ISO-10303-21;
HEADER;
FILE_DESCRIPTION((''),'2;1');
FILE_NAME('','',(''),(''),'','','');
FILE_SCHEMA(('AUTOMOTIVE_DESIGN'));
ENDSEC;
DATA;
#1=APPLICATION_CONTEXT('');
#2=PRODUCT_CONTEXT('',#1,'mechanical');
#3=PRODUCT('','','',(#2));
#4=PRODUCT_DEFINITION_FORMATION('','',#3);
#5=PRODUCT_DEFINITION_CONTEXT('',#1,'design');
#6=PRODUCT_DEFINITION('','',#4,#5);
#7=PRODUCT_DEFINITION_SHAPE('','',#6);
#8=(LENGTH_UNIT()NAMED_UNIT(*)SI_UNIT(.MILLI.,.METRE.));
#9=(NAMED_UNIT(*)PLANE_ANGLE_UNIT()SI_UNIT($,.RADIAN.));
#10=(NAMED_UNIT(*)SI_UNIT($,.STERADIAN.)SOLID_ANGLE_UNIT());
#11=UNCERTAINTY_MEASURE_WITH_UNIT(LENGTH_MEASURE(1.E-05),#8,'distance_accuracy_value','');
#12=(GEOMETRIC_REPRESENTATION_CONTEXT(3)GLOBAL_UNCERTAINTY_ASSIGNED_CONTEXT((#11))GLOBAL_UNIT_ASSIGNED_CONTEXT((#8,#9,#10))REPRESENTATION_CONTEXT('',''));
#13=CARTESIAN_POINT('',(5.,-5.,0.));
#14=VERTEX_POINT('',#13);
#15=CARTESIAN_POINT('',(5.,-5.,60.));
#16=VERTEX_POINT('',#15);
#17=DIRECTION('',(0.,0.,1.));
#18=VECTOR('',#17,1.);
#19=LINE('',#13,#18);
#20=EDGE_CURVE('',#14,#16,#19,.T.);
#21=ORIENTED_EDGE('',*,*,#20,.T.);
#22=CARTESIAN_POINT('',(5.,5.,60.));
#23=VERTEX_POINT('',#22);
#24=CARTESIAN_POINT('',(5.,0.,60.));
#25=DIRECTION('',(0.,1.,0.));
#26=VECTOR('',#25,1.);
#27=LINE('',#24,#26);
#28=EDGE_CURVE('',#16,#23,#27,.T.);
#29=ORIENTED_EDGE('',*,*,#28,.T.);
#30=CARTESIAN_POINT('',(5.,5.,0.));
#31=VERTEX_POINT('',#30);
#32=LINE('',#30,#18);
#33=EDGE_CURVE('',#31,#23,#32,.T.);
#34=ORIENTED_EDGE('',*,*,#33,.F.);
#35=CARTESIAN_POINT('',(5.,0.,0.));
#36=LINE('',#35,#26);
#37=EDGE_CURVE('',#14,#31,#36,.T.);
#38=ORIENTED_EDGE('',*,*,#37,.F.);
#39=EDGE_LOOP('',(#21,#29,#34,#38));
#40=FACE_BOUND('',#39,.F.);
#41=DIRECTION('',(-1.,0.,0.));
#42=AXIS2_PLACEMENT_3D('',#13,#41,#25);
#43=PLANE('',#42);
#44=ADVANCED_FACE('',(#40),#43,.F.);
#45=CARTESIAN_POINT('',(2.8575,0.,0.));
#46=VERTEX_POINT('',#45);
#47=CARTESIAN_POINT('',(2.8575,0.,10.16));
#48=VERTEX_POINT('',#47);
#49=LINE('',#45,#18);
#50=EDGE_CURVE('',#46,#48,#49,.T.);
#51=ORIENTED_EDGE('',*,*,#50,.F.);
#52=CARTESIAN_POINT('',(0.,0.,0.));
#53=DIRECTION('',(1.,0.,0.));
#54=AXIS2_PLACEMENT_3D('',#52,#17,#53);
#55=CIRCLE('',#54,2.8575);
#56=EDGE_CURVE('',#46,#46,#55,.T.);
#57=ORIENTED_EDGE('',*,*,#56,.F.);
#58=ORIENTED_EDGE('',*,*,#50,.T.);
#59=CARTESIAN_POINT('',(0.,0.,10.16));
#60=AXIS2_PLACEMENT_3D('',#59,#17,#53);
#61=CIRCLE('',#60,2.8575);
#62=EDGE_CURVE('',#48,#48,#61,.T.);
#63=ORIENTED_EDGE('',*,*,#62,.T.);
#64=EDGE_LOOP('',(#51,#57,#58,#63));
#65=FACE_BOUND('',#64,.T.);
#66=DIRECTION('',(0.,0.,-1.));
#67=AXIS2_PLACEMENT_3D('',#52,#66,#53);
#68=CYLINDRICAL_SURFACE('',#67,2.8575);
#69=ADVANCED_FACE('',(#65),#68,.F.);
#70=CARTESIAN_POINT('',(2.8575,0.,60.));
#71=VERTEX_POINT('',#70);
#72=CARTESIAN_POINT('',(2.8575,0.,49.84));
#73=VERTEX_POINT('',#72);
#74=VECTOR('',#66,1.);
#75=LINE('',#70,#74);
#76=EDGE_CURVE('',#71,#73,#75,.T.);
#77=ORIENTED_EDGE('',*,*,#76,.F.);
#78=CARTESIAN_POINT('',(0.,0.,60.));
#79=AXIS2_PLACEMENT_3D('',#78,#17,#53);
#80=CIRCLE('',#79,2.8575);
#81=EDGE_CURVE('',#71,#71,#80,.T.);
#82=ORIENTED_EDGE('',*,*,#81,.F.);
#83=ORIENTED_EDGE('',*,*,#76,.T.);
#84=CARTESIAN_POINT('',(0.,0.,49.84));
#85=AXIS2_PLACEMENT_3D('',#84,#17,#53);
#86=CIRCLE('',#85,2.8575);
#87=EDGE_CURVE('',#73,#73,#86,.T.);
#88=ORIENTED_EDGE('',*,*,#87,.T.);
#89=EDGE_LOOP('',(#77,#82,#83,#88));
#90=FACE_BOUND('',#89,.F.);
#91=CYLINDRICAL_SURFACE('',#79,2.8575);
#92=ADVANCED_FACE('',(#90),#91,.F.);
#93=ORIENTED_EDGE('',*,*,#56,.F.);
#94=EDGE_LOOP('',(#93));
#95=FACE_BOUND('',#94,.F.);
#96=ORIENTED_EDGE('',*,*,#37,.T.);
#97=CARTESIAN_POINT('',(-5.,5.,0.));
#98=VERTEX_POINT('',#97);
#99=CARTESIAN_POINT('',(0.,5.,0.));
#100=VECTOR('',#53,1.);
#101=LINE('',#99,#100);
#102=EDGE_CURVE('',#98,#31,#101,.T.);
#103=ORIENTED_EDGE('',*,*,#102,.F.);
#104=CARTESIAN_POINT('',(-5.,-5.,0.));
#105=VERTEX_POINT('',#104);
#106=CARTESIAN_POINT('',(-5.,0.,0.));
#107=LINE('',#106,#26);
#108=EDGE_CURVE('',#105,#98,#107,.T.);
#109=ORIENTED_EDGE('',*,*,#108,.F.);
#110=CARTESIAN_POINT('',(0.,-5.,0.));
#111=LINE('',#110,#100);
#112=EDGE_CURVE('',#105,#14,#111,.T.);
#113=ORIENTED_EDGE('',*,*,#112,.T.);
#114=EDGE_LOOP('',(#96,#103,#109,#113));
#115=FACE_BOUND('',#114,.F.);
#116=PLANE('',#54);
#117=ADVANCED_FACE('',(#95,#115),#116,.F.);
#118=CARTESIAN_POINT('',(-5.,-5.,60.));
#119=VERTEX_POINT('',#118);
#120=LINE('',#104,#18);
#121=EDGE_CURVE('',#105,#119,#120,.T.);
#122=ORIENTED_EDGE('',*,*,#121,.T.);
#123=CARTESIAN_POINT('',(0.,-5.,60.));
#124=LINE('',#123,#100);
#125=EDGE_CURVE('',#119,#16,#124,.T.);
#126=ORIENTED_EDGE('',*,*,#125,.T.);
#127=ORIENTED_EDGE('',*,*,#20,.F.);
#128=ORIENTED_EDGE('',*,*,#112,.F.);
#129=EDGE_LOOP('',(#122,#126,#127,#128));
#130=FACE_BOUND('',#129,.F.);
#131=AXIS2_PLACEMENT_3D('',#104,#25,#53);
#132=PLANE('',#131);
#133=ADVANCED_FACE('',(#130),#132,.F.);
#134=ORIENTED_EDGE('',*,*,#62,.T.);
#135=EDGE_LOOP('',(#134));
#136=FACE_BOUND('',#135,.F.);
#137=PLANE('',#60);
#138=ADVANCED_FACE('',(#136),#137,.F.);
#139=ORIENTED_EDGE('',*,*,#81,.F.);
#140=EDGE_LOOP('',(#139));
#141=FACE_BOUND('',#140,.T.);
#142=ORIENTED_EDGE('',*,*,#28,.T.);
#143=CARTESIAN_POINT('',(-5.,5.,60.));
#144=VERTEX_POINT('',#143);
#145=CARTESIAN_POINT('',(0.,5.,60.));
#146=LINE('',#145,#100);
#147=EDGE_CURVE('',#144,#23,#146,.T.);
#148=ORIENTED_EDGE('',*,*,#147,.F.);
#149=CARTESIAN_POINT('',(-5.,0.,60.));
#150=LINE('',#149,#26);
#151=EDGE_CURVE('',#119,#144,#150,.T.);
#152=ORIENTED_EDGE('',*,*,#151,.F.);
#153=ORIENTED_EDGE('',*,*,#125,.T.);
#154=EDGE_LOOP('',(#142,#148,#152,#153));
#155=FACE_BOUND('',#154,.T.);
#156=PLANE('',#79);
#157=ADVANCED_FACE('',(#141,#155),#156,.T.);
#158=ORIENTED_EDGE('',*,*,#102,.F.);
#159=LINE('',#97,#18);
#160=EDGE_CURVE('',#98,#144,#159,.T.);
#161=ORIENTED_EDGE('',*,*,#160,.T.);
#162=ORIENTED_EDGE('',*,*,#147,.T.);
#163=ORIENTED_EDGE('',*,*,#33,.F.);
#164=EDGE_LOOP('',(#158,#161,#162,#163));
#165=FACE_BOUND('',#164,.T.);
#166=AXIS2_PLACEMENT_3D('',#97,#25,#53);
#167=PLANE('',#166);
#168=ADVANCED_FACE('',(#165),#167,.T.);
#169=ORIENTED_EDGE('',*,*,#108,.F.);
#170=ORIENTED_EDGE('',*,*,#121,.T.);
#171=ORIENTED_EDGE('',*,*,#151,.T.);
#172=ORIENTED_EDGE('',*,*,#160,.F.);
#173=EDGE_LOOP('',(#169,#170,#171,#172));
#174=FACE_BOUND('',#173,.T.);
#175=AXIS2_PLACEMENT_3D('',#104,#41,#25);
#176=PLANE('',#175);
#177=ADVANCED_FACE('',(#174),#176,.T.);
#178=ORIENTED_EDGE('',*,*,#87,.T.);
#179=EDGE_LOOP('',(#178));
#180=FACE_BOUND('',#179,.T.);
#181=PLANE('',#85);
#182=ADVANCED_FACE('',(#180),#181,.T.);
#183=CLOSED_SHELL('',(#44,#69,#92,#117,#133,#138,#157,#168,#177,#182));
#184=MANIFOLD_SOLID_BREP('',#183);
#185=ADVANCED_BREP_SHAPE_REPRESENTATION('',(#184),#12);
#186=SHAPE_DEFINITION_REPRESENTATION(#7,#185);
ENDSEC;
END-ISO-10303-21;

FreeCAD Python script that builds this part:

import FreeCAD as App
import Part
import Sketcher

V = App.Vector


def add_polygon(sketch, points):
    """Adds a closed chain of lines whose ends are joined by coincident constraints."""
    first, n = sketch.GeometryCount, len(points)
    for a, b in zip(points, points[1:] + points[:1]):
        sketch.addGeometry(Part.LineSegment(App.Vector(*a, 0), App.Vector(*b, 0)), False)
    for i in range(n):
        sketch.addConstraint(Sketcher.Constraint("Coincident", first + i, 2, first + (i + 1) % n, 1))

doc = App.newDocument("Part")
body = doc.addObject("PartDesign::Body", "Body")

# Sketch on XY plane
sketch1 = body.newObject("Sketcher::SketchObject", "Sketch")
sketch1.AttachmentSupport = (doc.getObject("XY_Plane"), [""])
sketch1.MapMode = "FlatFace"
add_polygon(sketch1, [(-5, 5), (-5, -5), (5, -5), (5, 5)])  # lines 0-3
sketch1.addConstraint(Sketcher.Constraint("Vertical", 0))
sketch1.addConstraint(Sketcher.Constraint("Horizontal", 1))
sketch1.addConstraint(Sketcher.Constraint("Vertical", 2))
sketch1.addConstraint(Sketcher.Constraint("Horizontal", 3))
sketch1.addConstraint(Sketcher.Constraint("Symmetric", 0, 2, 2, 2, -1, 1))
sketch1.addConstraint(Sketcher.Constraint("Equal", 3, 0))
sketch1.addConstraint(Sketcher.Constraint("DistanceX", 1, 1, 1, 2, 10.0))
pad1 = body.newObject("PartDesign::Pad", "Pad")
pad1.Profile = sketch1
pad1.Length = 60

# Sketch on XY plane
sketch2 = body.newObject("Sketcher::SketchObject", "Sketch001")
sketch2.AttachmentSupport = (doc.getObject("XY_Plane"), [""])
sketch2.MapMode = "FlatFace"
sketch2.addGeometry(Part.Circle(V(0, 0, 0), V(0, 0, 1), 2.9), False)
sketch2.addConstraint(Sketcher.Constraint("Coincident", 0, 3, -1, 1))
sketch2.addConstraint(Sketcher.Constraint("Diameter", 0, 5.715))
pocket1 = body.newObject("PartDesign::Pocket", "Pocket")
pocket1.Profile = sketch2
pocket1.Length = 10.16
pocket1.Reversed = True

# Sketch on XY plane
sketch3 = body.newObject("Sketcher::SketchObject", "Sketch002")
sketch3.AttachmentSupport = (doc.getObject("XY_Plane"), [""])
sketch3.MapMode = "FlatFace"
sketch3.AttachmentOffset = App.Placement(V(0, 0, 60), App.Rotation())
sketch3.addGeometry(Part.Circle(V(0, 0, 0), V(0, 0, 1), 2.9), False)
sketch3.addConstraint(Sketcher.Constraint("Coincident", 0, 3, -1, 1))
sketch3.addConstraint(Sketcher.Constraint("Diameter", 0, 5.715))
pocket2 = body.newObject("PartDesign::Pocket", "Pocket001")
pocket2.Profile = sketch3
pocket2.Length = 10.16

doc.recompute()
